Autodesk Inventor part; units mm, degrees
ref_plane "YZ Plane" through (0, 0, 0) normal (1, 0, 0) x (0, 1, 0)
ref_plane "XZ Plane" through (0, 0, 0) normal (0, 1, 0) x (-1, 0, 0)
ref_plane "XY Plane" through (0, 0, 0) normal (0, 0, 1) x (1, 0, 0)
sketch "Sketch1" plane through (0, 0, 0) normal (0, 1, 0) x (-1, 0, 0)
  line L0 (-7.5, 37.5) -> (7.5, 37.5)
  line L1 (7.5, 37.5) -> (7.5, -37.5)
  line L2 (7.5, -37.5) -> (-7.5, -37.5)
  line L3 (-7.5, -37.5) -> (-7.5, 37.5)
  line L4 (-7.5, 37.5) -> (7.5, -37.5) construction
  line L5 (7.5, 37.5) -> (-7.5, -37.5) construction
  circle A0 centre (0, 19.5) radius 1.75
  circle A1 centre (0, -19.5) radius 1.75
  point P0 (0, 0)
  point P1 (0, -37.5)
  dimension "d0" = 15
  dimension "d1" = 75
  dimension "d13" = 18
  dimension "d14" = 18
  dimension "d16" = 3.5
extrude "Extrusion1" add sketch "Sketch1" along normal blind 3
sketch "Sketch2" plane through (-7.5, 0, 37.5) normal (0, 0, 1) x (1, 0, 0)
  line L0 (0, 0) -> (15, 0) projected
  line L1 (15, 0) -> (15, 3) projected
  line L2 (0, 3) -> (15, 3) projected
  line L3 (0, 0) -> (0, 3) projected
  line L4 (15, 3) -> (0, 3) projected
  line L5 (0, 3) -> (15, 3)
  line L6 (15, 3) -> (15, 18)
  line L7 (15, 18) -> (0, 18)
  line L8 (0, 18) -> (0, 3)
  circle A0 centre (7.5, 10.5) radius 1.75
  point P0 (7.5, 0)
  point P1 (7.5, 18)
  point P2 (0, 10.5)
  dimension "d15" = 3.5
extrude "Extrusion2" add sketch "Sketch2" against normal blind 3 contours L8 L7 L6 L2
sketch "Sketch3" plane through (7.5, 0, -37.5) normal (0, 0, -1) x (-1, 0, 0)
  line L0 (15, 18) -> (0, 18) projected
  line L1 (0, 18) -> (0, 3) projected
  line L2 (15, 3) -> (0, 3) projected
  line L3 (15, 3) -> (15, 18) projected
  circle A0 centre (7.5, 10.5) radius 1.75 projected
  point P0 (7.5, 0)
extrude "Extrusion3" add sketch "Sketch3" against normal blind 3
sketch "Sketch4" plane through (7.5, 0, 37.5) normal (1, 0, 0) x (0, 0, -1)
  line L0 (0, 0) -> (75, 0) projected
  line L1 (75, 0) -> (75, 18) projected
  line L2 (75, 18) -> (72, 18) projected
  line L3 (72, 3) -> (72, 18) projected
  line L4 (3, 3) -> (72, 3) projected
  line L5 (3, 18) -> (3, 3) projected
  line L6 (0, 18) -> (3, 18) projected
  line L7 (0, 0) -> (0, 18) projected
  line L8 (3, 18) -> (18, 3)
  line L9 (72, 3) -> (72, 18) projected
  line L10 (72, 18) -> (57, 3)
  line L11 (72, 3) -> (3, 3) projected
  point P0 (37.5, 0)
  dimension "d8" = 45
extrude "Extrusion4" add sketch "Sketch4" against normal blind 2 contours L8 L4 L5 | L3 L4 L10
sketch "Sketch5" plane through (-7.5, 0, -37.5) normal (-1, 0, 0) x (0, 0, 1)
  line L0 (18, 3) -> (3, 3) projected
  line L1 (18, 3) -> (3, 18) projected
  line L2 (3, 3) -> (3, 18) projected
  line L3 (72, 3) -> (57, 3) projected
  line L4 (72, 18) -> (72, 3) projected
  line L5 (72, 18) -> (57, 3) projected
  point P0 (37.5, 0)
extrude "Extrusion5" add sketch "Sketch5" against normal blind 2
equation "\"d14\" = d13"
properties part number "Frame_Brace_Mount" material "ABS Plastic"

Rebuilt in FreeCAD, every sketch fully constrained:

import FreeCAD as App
import Part
import Sketcher
Q = App.Units.Quantity


def add_polygon(sketch, points):
    """Adds a closed chain of lines whose ends are joined by coincident constraints."""
    first, n = sketch.GeometryCount, len(points)
    for a, b in zip(points, points[1:] + points[:1]):
        sketch.addGeometry(Part.LineSegment(App.Vector(*a, 0), App.Vector(*b, 0)), False)
    for i in range(n):
        sketch.addConstraint(Sketcher.Constraint("Coincident", first + i, 2, first + (i + 1) % n, 1))

doc = App.newDocument("Part")
body = doc.addObject("PartDesign::Body", "Body")

# Sketch on XZ plane
sketch1 = body.newObject("Sketcher::SketchObject", "Sketch")
sketch1.AttachmentSupport = (doc.getObject("XZ_Plane"), [""])
sketch1.MapMode = "FlatFace"
add_polygon(sketch1, [(-7.5, 37.5), (7.5, 37.5), (7.5, -37.5), (-7.5, -37.5)])  # lines 0-3
sketch1.addGeometry(Part.Circle(App.Vector(0, -19.5, 0), App.Vector(0, 0, 1), 1.75), False)  # 4
sketch1.addGeometry(Part.Circle(App.Vector(0, 19.5, 0), App.Vector(0, 0, 1), 1.75), False)  # 5
sketch1.addConstraint(Sketcher.Constraint("Horizontal", 0))
sketch1.addConstraint(Sketcher.Constraint("Vertical", 1))
sketch1.addConstraint(Sketcher.Constraint("Horizontal", 2))
sketch1.addConstraint(Sketcher.Constraint("Vertical", 3))
sketch1.addConstraint(Sketcher.Constraint("Equal", 4, 5))
sketch1.addConstraint(Sketcher.Constraint("Symmetric", 4, 3, 5, 3, -1, 1))
sketch1.addConstraint(Sketcher.Constraint("Symmetric", 0, 2, 2, 2, -1, 1))
sketch1.addConstraint(Sketcher.Constraint("PointOnObject", 4, 3, -2))
sketch1.addConstraint(Sketcher.Constraint("Diameter", 4, Q("3.5 mm")))
sketch1.addConstraint(Sketcher.Constraint("DistanceX", 0, 1, 0, 2, Q("15 mm")))
sketch1.addConstraint(Sketcher.Constraint("DistanceY", 1, 2, 1, 1, Q("75 mm")))
sketch1.addConstraint(Sketcher.Constraint("DistanceY", 5, 3, 0, 2, Q("18 mm")))
pad1 = body.newObject("PartDesign::Pad", "Pad")
pad1.Profile = sketch1
pad1.Length = 3
pad1.Reversed = True

# Sketch on XY plane
sketch2 = body.newObject("Sketcher::SketchObject", "Sketch001")
sketch2.AttachmentSupport = (doc.getObject("XY_Plane"), [""])
sketch2.MapMode = "FlatFace"
sketch2.AttachmentOffset = App.Placement(App.Vector(0, 0, 37.5), App.Rotation())
add_polygon(sketch2, [(-7.5, 18), (-7.5, 3), (7.5, 3), (7.5, 18)])  # lines 0-3
sketch2.addGeometry(Part.Circle(App.Vector(0, 10.5, 0), App.Vector(0, 0, 1), 1.75), False)  # 4
sketch2.addConstraint(Sketcher.Constraint("Vertical", 0))
sketch2.addConstraint(Sketcher.Constraint("Horizontal", 1))
sketch2.addConstraint(Sketcher.Constraint("Vertical", 2))
sketch2.addConstraint(Sketcher.Constraint("Horizontal", 3))
sketch2.addConstraint(Sketcher.Constraint("PointOnObject", 4, 3, -2))
sketch2.addConstraint(Sketcher.Constraint("Equal", 3, 0))
sketch2.addConstraint(Sketcher.Constraint("Diameter", 4, Q("3.5 mm")))
sketch2.addConstraint(Sketcher.Constraint("DistanceX", 1, 1, 1, 2, Q("15 mm")))
sketch2.addConstraint(Sketcher.Constraint("DistanceY", -1, 1, 0, 2, Q("3 mm")))
sketch2.addConstraint(Sketcher.Constraint("DistanceY", -1, 1, 4, 3, Q("10.5 mm")))
sketch2.addConstraint(Sketcher.Constraint("DistanceX", 0, 2, -1, 1, Q("7.5 mm")))
pad2 = body.newObject("PartDesign::Pad", "Pad001")
pad2.Profile = sketch2
pad2.Length = 3
pad2.Reversed = True

# Sketch on XY plane
sketch3 = body.newObject("Sketcher::SketchObject", "Sketch002")
sketch3.AttachmentSupport = (doc.getObject("XY_Plane"), [""])
sketch3.MapMode = "FlatFace"
sketch3.AttachmentOffset = App.Placement(App.Vector(0, 0, -37.5), App.Rotation())
add_polygon(sketch3, [(-7.5, 3), (-7.5, 18), (7.5, 18), (7.5, 3)])  # lines 0-3
sketch3.addGeometry(Part.Circle(App.Vector(0, 10.5, 0), App.Vector(0, 0, 1), 1.75), False)  # 4
sketch3.addConstraint(Sketcher.Constraint("Vertical", 0))
sketch3.addConstraint(Sketcher.Constraint("Horizontal", 1))
sketch3.addConstraint(Sketcher.Constraint("Vertical", 2))
sketch3.addConstraint(Sketcher.Constraint("Horizontal", 3))
sketch3.addConstraint(Sketcher.Constraint("PointOnObject", 4, 3, -2))
sketch3.addConstraint(Sketcher.Constraint("Equal", 3, 0))
sketch3.addConstraint(Sketcher.Constraint("Diameter", 4, Q("3.5 mm")))
sketch3.addConstraint(Sketcher.Constraint("DistanceX", 1, 1, 1, 2, Q("15 mm")))
sketch3.addConstraint(Sketcher.Constraint("DistanceY", -1, 1, 0, 2, Q("18 mm")))
sketch3.addConstraint(Sketcher.Constraint("DistanceY", -1, 1, 4, 3, Q("10.5 mm")))
sketch3.addConstraint(Sketcher.Constraint("DistanceX", 0, 2, -1, 1, Q("7.5 mm")))
pad3 = body.newObject("PartDesign::Pad", "Pad002")
pad3.Profile = sketch3
pad3.Length = 3

# Sketch on YZ plane
sketch4 = body.newObject("Sketcher::SketchObject", "Sketch003")
sketch4.AttachmentSupport = (doc.getObject("YZ_Plane"), [""])
sketch4.MapMode = "FlatFace"
sketch4.AttachmentOffset = App.Placement(App.Vector(0, 0, 7.5), App.Rotation())
add_polygon(sketch4, [(3, 19.5), (18, 34.5), (3, 34.5)])  # lines 0-2
add_polygon(sketch4, [(3, -34.5), (18, -34.5), (3, -19.5)])  # lines 3-5
sketch4.addConstraint(Sketcher.Constraint("Horizontal", 1))
sketch4.addConstraint(Sketcher.Constraint("Vertical", 2))
sketch4.addConstraint(Sketcher.Constraint("Horizontal", 3))
sketch4.addConstraint(Sketcher.Constraint("Vertical", 5))
sketch4.addConstraint(Sketcher.Constraint("Symmetric", 0, 2, 3, 2, -1))
sketch4.addConstraint(Sketcher.Constraint("Symmetric", 2, 2, 4, 2, -1))
sketch4.addConstraint(Sketcher.Constraint("Perpendicular", 0, 4))
sketch4.addConstraint(Sketcher.Constraint("DistanceX", 1, 2, 1, 1, Q("15 mm")))
sketch4.addConstraint(Sketcher.Constraint("DistanceX", -1, 1, 0, 2, Q("18 mm")))
sketch4.addConstraint(Sketcher.Constraint("DistanceY", 3, 2, 2, 2, Q("54 mm")))
pad4 = body.newObject("PartDesign::Pad", "Pad003")
pad4.Profile = sketch4
pad4.Length = 2
pad4.Reversed = True

# Sketch on YZ plane
sketch5 = body.newObject("Sketcher::SketchObject", "Sketch004")
sketch5.AttachmentSupport = (doc.getObject("YZ_Plane"), [""])
sketch5.MapMode = "FlatFace"
sketch5.AttachmentOffset = App.Placement(App.Vector(0, 0, -7.5), App.Rotation())
add_polygon(sketch5, [(3, -34.5), (3, -19.5), (18, -34.5)])  # lines 0-2
add_polygon(sketch5, [(3, 19.5), (3, 34.5), (18, 34.5)])  # lines 3-5
sketch5.addConstraint(Sketcher.Constraint("Vertical", 0))
sketch5.addConstraint(Sketcher.Constraint("Horizontal", 2))
sketch5.addConstraint(Sketcher.Constraint("Vertical", 3))
sketch5.addConstraint(Sketcher.Constraint("Horizontal", 4))
sketch5.addConstraint(Sketcher.Constraint("Symmetric", 2, 2, 3, 2, -1))
sketch5.addConstraint(Sketcher.Constraint("Perpendicular", 1, 5))
sketch5.addConstraint(Sketcher.Constraint("Vertical", 1, 2, 4, 2))
sketch5.addConstraint(Sketcher.Constraint("Equal", 4, 0))
sketch5.addConstraint(Sketcher.Constraint("DistanceX", 2, 2, 2, 1, Q("15 mm")))
sketch5.addConstraint(Sketcher.Constraint("DistanceX", -1, 1, 0, 2, Q("3 mm")))
sketch5.addConstraint(Sketcher.Constraint("DistanceY", 0, 2, 3, 2, Q("54 mm")))
pad5 = body.newObject("PartDesign::Pad", "Pad004")
pad5.Profile = sketch5
pad5.Length = 2

doc.recompute()
